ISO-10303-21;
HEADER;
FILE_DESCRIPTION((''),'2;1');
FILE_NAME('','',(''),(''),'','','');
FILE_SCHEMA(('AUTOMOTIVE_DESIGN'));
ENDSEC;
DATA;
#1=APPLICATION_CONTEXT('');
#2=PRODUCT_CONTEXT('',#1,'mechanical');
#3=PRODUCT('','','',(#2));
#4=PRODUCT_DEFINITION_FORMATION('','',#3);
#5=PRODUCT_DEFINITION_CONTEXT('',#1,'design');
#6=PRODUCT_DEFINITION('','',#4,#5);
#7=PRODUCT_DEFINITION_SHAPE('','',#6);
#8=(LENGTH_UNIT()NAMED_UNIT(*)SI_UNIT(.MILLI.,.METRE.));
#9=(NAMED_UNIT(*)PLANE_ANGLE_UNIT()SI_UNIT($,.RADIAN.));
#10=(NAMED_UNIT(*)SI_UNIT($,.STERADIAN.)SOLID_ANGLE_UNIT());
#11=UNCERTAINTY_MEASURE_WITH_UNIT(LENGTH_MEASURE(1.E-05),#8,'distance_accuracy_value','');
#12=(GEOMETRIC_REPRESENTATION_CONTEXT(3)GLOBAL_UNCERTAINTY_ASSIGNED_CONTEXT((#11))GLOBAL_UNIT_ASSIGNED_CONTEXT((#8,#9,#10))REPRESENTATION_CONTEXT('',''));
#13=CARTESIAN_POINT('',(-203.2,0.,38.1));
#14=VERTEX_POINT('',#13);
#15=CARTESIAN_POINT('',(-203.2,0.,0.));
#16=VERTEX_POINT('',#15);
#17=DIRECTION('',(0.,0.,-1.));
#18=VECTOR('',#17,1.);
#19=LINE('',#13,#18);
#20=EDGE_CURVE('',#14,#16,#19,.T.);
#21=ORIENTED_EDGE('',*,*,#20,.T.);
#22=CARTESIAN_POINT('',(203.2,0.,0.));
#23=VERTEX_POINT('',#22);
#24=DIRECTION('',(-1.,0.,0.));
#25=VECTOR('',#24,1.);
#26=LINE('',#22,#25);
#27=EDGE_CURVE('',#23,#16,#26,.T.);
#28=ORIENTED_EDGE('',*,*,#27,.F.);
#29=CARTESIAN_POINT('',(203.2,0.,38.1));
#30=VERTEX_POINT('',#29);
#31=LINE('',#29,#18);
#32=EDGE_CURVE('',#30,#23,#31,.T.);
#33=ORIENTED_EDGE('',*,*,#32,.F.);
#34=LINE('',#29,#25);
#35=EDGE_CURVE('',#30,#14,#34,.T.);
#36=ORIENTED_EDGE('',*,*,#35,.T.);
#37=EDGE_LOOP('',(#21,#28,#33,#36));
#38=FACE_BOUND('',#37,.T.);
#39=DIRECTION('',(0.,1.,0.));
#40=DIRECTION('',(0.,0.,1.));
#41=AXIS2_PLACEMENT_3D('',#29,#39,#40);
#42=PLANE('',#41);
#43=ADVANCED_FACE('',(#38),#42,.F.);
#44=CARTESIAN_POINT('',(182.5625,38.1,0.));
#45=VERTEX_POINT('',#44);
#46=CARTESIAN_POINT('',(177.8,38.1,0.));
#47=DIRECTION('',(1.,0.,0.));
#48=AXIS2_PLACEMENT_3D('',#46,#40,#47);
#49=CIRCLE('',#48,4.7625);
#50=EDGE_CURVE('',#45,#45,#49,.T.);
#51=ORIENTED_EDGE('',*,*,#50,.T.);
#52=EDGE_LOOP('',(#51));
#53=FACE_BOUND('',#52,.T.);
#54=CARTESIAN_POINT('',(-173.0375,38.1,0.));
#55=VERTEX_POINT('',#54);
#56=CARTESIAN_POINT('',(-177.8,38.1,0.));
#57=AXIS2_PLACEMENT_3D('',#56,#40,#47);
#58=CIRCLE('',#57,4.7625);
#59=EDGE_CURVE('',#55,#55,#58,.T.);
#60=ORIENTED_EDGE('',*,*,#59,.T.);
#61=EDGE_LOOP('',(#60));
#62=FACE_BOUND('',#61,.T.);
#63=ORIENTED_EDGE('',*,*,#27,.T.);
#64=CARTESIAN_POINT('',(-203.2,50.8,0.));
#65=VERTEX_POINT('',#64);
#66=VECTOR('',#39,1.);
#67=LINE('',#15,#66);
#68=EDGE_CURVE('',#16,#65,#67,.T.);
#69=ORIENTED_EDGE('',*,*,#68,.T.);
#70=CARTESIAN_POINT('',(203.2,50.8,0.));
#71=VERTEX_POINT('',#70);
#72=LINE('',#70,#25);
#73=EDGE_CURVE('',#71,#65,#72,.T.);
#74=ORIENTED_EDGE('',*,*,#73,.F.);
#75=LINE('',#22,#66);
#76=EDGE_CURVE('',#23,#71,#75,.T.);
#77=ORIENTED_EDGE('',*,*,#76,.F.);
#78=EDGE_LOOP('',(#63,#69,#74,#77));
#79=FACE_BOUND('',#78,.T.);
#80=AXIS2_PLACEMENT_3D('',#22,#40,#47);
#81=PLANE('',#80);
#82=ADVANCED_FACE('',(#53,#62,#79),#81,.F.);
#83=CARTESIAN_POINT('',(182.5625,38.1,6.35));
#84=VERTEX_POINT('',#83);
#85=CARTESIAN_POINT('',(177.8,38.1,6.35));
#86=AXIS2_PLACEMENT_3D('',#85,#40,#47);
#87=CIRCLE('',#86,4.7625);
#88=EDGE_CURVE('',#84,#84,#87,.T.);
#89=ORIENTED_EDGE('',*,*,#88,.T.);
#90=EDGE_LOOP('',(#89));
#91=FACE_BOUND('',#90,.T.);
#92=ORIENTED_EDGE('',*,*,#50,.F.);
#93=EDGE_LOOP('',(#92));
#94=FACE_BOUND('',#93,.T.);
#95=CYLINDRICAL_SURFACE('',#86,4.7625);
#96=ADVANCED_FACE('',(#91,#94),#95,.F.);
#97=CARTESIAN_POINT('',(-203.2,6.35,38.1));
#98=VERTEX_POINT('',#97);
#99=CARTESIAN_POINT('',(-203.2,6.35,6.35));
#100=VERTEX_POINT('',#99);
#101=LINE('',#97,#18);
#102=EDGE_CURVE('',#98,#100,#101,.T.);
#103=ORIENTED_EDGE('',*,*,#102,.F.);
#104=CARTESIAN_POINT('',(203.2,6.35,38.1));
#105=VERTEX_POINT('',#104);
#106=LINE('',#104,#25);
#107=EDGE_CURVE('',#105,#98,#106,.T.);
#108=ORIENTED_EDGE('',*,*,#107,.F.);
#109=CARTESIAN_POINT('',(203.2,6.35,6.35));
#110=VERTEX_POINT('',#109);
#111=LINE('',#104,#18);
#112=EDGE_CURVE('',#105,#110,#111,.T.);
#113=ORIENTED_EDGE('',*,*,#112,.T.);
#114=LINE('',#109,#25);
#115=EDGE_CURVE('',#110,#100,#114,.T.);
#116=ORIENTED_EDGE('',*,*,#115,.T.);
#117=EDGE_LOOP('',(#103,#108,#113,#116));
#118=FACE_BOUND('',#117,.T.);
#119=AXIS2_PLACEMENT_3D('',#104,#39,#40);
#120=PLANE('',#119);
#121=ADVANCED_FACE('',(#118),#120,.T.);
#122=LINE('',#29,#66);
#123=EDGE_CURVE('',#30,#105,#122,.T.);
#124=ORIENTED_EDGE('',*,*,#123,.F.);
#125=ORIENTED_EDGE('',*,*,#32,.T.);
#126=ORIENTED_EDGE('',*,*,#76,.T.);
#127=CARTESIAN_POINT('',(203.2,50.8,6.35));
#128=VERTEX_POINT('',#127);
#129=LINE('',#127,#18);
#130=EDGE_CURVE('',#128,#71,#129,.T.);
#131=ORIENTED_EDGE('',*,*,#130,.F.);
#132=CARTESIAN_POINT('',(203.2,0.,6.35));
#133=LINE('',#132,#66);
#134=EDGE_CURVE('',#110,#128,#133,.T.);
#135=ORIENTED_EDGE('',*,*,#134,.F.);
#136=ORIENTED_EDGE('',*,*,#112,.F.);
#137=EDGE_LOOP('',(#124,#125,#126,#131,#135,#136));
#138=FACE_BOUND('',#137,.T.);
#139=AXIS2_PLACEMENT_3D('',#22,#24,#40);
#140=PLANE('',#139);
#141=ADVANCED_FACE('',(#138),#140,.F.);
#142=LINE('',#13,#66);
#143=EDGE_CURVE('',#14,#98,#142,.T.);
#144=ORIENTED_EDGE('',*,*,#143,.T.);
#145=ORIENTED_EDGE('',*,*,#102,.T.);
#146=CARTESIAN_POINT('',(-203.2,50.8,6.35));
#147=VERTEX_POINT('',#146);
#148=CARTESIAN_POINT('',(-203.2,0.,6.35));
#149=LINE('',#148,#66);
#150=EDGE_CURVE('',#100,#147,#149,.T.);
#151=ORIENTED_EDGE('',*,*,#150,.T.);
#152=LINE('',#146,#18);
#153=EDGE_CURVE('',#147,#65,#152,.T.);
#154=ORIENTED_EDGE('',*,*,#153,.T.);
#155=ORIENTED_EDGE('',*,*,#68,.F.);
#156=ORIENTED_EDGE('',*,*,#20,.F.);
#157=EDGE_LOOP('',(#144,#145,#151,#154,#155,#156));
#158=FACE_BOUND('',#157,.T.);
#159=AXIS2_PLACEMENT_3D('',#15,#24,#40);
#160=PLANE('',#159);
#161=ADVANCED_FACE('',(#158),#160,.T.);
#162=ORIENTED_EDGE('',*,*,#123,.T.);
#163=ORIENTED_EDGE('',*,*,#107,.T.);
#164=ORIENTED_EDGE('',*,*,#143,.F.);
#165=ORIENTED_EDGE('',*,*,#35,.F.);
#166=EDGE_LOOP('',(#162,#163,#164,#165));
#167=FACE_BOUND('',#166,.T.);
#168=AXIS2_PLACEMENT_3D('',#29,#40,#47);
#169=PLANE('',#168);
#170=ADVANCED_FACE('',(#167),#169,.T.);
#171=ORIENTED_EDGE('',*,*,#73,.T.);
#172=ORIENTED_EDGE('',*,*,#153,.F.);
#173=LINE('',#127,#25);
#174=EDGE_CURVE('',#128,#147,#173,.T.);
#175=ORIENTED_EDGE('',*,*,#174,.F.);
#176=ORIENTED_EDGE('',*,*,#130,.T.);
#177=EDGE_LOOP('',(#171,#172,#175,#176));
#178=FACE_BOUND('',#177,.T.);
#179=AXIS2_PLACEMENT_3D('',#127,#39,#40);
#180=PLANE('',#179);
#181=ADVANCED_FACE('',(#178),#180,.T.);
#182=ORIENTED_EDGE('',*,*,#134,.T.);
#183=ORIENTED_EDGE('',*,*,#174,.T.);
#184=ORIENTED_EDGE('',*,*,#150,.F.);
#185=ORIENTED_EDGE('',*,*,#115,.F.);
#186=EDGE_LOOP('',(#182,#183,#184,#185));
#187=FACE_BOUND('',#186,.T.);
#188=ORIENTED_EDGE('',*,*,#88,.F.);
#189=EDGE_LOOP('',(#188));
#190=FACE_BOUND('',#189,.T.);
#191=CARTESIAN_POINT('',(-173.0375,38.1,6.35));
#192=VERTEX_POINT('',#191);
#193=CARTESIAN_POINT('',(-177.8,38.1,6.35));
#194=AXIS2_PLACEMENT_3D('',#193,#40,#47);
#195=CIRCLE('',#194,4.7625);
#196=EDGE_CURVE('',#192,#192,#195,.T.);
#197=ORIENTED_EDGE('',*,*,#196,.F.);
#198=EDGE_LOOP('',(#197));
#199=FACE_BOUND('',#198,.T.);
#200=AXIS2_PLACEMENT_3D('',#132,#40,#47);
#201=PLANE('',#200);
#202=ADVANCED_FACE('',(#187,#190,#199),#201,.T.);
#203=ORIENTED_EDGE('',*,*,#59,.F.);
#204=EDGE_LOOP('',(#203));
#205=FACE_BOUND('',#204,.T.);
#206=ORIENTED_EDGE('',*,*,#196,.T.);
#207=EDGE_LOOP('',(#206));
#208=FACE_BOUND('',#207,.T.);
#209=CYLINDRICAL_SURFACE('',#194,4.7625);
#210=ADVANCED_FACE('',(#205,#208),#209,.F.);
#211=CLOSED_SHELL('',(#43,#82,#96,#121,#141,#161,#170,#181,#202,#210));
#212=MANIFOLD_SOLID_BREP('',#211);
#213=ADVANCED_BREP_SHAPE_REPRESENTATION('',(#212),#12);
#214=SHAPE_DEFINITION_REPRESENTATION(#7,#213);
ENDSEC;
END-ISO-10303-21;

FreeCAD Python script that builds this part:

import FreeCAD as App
import Part
import Sketcher
from FreeCAD import Vector
Q = App.Units.Quantity


def add_polygon(sketch, points):
    """Adds a closed chain of lines whose ends are joined by coincident constraints."""
    first, n = sketch.GeometryCount, len(points)
    for a, b in zip(points, points[1:] + points[:1]):
        sketch.addGeometry(Part.LineSegment(App.Vector(*a, 0), App.Vector(*b, 0)), False)
    for i in range(n):
        sketch.addConstraint(Sketcher.Constraint("Coincident", first + i, 2, first + (i + 1) % n, 1))

doc = App.newDocument("Part")
params = doc.addObject("Spreadsheet::Sheet", "Params")
for row, (alias, value) in enumerate([
    ("sketch1_width", "2 in"),
    ("sketch1_height", "1.5 in"),
    ("sketch1_width2", "1.75 in"),
    ("pad1_length", "16 in"),
    ("sketch2_diameter", "0.375 in"),
    ("hole_diameter", "0.375 in"),
], start=1):
    params.set(f"A{row}", alias)
    params.set(f"B{row}", "=" + value)
    params.setAlias(f"B{row}", alias)

body = doc.addObject("PartDesign::Body", "Body")

sketch1 = doc.addObject("Sketcher::SketchObject", "Sketch")
body.addObject(sketch1)
sketch1.AttachmentSupport = (doc.YZ_Plane, [""])
sketch1.MapMode = "FlatFace"
add_polygon(sketch1, [(0, 38), (0, 0), (51, 0), (51, 6), (6, 6), (6, 38)])
sketch1.addConstraint(Sketcher.Constraint("Vertical", 0))
sketch1.addConstraint(Sketcher.Constraint("Horizontal", 1))
sketch1.addConstraint(Sketcher.Constraint("Vertical", 2))
sketch1.addConstraint(Sketcher.Constraint("Horizontal", 3))
sketch1.addConstraint(Sketcher.Constraint("Vertical", 4))
sketch1.addConstraint(Sketcher.Constraint("Horizontal", 5))
sketch1.addConstraint(Sketcher.Constraint("Coincident", 0, 2, -1, 1))
sketch1.addConstraint(Sketcher.Constraint("Equal", 5, 2))
sketch1.addConstraint(Sketcher.Constraint("DistanceX", 1, 1, 1, 2, Q("2 in")))
sketch1.addConstraint(Sketcher.Constraint("DistanceY", 0, 2, 0, 1, Q("1.5 in")))
sketch1.addConstraint(Sketcher.Constraint("DistanceX", 3, 2, 3, 1, Q("1.75 in")))
sketch1.setExpression("Constraints[14]", "Params.sketch1_width")
sketch1.setExpression("Constraints[15]", "Params.sketch1_height")
sketch1.setExpression("Constraints[16]", "Params.sketch1_width2")
pad1 = doc.addObject("PartDesign::Pad", "Pad")
body.addObject(pad1)
pad1.Profile = sketch1
pad1.setExpression("Length", "Params.pad1_length")
pad1.Midplane = True

sketch2 = doc.addObject("Sketcher::SketchObject", "Sketch001")
body.addObject(sketch2)
sketch2.AttachmentSupport = (doc.XY_Plane, [""])
sketch2.MapMode = "FlatFace"
sketch2.AttachmentOffset = App.Placement(Vector(0, 0, 0.25 * 25.4), App.Rotation())
sketch2.addGeometry(Part.Circle(Vector(-177.8, 38.1, 0), Vector(0, 0, 1), 4.8), False)
sketch2.addGeometry(Part.Circle(Vector(177.8, 38.1, 0), Vector(0, 0, 1), 4.8), False)
sketch2.addConstraint(Sketcher.Constraint("Equal", 0, 1))
sketch2.addConstraint(Sketcher.Constraint("Symmetric", 0, 3, 1, 3, -2))
sketch2.addConstraint(Sketcher.Constraint("Diameter", 0, Q("0.375 in")))
sketch2.addConstraint(Sketcher.Constraint("DistanceX", 0, 3, -1, 1, Q("7 in")))
sketch2.addConstraint(Sketcher.Constraint("DistanceY", -1, 1, 0, 3, Q("1.5 in")))
sketch2.setExpression("Constraints[2]", "Params.sketch2_diameter")
doc.recompute()
hole = doc.addObject("PartDesign::Hole", "Hole")
body.addObject(hole)
hole.Profile = sketch2
hole.ThreadType = "None"
hole.setExpression("Diameter", "Params.hole_diameter")
hole.DepthType = "ThroughAll"

doc.recompute()
